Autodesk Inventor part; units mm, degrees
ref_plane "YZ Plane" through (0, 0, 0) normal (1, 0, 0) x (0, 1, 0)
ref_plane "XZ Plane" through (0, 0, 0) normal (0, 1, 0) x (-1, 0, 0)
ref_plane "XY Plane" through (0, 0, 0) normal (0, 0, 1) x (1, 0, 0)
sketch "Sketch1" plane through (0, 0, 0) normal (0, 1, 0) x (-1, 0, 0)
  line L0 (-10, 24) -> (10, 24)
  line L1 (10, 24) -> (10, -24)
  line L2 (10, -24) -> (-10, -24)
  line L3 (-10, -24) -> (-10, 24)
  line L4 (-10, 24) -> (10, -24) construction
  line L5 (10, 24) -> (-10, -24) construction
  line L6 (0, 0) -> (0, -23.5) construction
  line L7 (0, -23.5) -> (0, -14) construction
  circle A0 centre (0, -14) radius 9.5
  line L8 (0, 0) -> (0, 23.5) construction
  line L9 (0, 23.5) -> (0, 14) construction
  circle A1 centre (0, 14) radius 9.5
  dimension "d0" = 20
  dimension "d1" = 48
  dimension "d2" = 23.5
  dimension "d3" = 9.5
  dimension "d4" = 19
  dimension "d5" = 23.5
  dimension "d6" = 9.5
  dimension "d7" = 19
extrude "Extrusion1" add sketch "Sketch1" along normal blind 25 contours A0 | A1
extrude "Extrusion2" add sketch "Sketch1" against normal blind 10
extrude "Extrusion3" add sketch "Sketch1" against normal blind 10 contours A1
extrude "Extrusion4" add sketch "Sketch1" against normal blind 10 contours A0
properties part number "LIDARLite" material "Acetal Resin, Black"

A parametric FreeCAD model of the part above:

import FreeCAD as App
import Part
import Sketcher
Q = App.Units.Quantity

doc = App.newDocument("Part")
params = doc.addObject("Spreadsheet::Sheet", "Params")
for row, (alias, value) in enumerate([
    ("sketch1_diameter", "19 mm"),
    ("pad1_length", "25 mm"),
    ("sketch2_diameter", "19 mm"),
    ("sketch2_width", "20 mm"),
    ("sketch2_height", "48 mm"),
    ("pad2_length", "10 mm"),
    ("sketch3_diameter", "19 mm"),
    ("pad3_length", "10 mm"),
    ("sketch4_diameter", "19 mm"),
    ("pad4_length", "10 mm"),
], start=1):
    params.set(f"A{row}", alias)
    params.set(f"B{row}", "=" + value)
    params.setAlias(f"B{row}", alias)

body = doc.addObject("PartDesign::Body", "Body")
body.AllowCompound = True

# Sketch on XZ plane
sketch1 = body.newObject("Sketcher::SketchObject", "Sketch")
sketch1.AttachmentSupport = (doc.getObject("XZ_Plane"), [""])
sketch1.MapMode = "FlatFace"
sketch1.addGeometry(Part.Circle(App.Vector(0, -14, 0), App.Vector(0, 0, 1), 10), False)
sketch1.addGeometry(Part.Circle(App.Vector(0, 14, 0), App.Vector(0, 0, 1), 10), False)
sketch1.addConstraint(Sketcher.Constraint("Equal", 0, 1))
sketch1.addConstraint(Sketcher.Constraint("Symmetric", 0, 3, 1, 3, -1, 1))
sketch1.addConstraint(Sketcher.Constraint("PointOnObject", 0, 3, -2))
sketch1.addConstraint(Sketcher.Constraint("Diameter", 0, Q("19 mm")))
sketch1.addConstraint(Sketcher.Constraint("DistanceY", 0, 3, -1, 1, Q("14 mm")))
sketch1.setExpression("Constraints[3]", "Params.sketch1_diameter")
pad1 = body.newObject("PartDesign::Pad", "Pad")
pad1.Profile = sketch1
pad1.setExpression("Length", "Params.pad1_length")
pad1.Reversed = True

# Sketch on XZ plane
sketch2 = body.newObject("Sketcher::SketchObject", "Sketch001")
sketch2.AttachmentSupport = (doc.getObject("XZ_Plane"), [""])
sketch2.MapMode = "FlatFace"
sketch2.addGeometry(Part.LineSegment(App.Vector(-10, 24, 0), App.Vector(10, 24, 0)), False)
sketch2.addGeometry(Part.LineSegment(App.Vector(10, 24, 0), App.Vector(10, -24, 0)), False)
sketch2.addGeometry(Part.LineSegment(App.Vector(10, -24, 0), App.Vector(-10, -24, 0)), False)
sketch2.addGeometry(Part.LineSegment(App.Vector(-10, -24, 0), App.Vector(-10, 24, 0)), False)
sketch2.addGeometry(Part.Circle(App.Vector(0, -14, 0), App.Vector(0, 0, 1), 10), False)
sketch2.addGeometry(Part.Circle(App.Vector(0, 14, 0), App.Vector(0, 0, 1), 10), False)
sketch2.addConstraint(Sketcher.Constraint("Coincident", 0, 2, 1, 1))
sketch2.addConstraint(Sketcher.Constraint("Coincident", 1, 2, 2, 1))
sketch2.addConstraint(Sketcher.Constraint("Coincident", 2, 2, 3, 1))
sketch2.addConstraint(Sketcher.Constraint("Coincident", 3, 2, 0, 1))
sketch2.addConstraint(Sketcher.Constraint("Horizontal", 0))
sketch2.addConstraint(Sketcher.Constraint("Vertical", 1))
sketch2.addConstraint(Sketcher.Constraint("Horizontal", 2))
sketch2.addConstraint(Sketcher.Constraint("Vertical", 3))
sketch2.addConstraint(Sketcher.Constraint("Equal", 4, 5))
sketch2.addConstraint(Sketcher.Constraint("Symmetric", 4, 3, 5, 3, -1, 1))
sketch2.addConstraint(Sketcher.Constraint("Symmetric", 0, 2, 2, 2, -1, 1))
sketch2.addConstraint(Sketcher.Constraint("PointOnObject", 4, 3, -2))
sketch2.addConstraint(Sketcher.Constraint("Diameter", 4, Q("19 mm")))
sketch2.addConstraint(Sketcher.Constraint("DistanceX", 0, 1, 0, 2, Q("20 mm")))
sketch2.addConstraint(Sketcher.Constraint("DistanceY", 1, 2, 1, 1, Q("48 mm")))
sketch2.addConstraint(Sketcher.Constraint("DistanceY", 4, 3, -1, 1, Q("14 mm")))
sketch2.setExpression("Constraints[12]", "Params.sketch2_diameter")
sketch2.setExpression("Constraints[13]", "Params.sketch2_width")
sketch2.setExpression("Constraints[14]", "Params.sketch2_height")
pad2 = body.newObject("PartDesign::Pad", "Pad001")
pad2.Profile = sketch2
pad2.setExpression("Length", "Params.pad2_length")

# Sketch on XZ plane
sketch3 = body.newObject("Sketcher::SketchObject", "Sketch002")
sketch3.AttachmentSupport = (doc.getObject("XZ_Plane"), [""])
sketch3.MapMode = "FlatFace"
sketch3.addGeometry(Part.Circle(App.Vector(0, 14, 0), App.Vector(0, 0, 1), 10), False)
sketch3.addConstraint(Sketcher.Constraint("PointOnObject", 0, 3, -2))
sketch3.addConstraint(Sketcher.Constraint("Diameter", 0, Q("19 mm")))
sketch3.addConstraint(Sketcher.Constraint("DistanceY", -1, 1, 0, 3, Q("14 mm")))
sketch3.setExpression("Constraints[1]", "Params.sketch3_diameter")
pad3 = body.newObject("PartDesign::Pad", "Pad002")
pad3.Profile = sketch3
pad3.setExpression("Length", "Params.pad3_length")

# Sketch on XZ plane
sketch4 = body.newObject("Sketcher::SketchObject", "Sketch003")
sketch4.AttachmentSupport = (doc.getObject("XZ_Plane"), [""])
sketch4.MapMode = "FlatFace"
sketch4.addGeometry(Part.Circle(App.Vector(0, -14, 0), App.Vector(0, 0, 1), 10), False)
sketch4.addConstraint(Sketcher.Constraint("PointOnObject", 0, 3, -2))
sketch4.addConstraint(Sketcher.Constraint("Diameter", 0, Q("19 mm")))
sketch4.addConstraint(Sketcher.Constraint("DistanceY", 0, 3, -1, 1, Q("14 mm")))
sketch4.setExpression("Constraints[1]", "Params.sketch4_diameter")
pad4 = body.newObject("PartDesign::Pad", "Pad003")
pad4.Profile = sketch4
pad4.setExpression("Length", "Params.pad4_length")

doc.recompute()
